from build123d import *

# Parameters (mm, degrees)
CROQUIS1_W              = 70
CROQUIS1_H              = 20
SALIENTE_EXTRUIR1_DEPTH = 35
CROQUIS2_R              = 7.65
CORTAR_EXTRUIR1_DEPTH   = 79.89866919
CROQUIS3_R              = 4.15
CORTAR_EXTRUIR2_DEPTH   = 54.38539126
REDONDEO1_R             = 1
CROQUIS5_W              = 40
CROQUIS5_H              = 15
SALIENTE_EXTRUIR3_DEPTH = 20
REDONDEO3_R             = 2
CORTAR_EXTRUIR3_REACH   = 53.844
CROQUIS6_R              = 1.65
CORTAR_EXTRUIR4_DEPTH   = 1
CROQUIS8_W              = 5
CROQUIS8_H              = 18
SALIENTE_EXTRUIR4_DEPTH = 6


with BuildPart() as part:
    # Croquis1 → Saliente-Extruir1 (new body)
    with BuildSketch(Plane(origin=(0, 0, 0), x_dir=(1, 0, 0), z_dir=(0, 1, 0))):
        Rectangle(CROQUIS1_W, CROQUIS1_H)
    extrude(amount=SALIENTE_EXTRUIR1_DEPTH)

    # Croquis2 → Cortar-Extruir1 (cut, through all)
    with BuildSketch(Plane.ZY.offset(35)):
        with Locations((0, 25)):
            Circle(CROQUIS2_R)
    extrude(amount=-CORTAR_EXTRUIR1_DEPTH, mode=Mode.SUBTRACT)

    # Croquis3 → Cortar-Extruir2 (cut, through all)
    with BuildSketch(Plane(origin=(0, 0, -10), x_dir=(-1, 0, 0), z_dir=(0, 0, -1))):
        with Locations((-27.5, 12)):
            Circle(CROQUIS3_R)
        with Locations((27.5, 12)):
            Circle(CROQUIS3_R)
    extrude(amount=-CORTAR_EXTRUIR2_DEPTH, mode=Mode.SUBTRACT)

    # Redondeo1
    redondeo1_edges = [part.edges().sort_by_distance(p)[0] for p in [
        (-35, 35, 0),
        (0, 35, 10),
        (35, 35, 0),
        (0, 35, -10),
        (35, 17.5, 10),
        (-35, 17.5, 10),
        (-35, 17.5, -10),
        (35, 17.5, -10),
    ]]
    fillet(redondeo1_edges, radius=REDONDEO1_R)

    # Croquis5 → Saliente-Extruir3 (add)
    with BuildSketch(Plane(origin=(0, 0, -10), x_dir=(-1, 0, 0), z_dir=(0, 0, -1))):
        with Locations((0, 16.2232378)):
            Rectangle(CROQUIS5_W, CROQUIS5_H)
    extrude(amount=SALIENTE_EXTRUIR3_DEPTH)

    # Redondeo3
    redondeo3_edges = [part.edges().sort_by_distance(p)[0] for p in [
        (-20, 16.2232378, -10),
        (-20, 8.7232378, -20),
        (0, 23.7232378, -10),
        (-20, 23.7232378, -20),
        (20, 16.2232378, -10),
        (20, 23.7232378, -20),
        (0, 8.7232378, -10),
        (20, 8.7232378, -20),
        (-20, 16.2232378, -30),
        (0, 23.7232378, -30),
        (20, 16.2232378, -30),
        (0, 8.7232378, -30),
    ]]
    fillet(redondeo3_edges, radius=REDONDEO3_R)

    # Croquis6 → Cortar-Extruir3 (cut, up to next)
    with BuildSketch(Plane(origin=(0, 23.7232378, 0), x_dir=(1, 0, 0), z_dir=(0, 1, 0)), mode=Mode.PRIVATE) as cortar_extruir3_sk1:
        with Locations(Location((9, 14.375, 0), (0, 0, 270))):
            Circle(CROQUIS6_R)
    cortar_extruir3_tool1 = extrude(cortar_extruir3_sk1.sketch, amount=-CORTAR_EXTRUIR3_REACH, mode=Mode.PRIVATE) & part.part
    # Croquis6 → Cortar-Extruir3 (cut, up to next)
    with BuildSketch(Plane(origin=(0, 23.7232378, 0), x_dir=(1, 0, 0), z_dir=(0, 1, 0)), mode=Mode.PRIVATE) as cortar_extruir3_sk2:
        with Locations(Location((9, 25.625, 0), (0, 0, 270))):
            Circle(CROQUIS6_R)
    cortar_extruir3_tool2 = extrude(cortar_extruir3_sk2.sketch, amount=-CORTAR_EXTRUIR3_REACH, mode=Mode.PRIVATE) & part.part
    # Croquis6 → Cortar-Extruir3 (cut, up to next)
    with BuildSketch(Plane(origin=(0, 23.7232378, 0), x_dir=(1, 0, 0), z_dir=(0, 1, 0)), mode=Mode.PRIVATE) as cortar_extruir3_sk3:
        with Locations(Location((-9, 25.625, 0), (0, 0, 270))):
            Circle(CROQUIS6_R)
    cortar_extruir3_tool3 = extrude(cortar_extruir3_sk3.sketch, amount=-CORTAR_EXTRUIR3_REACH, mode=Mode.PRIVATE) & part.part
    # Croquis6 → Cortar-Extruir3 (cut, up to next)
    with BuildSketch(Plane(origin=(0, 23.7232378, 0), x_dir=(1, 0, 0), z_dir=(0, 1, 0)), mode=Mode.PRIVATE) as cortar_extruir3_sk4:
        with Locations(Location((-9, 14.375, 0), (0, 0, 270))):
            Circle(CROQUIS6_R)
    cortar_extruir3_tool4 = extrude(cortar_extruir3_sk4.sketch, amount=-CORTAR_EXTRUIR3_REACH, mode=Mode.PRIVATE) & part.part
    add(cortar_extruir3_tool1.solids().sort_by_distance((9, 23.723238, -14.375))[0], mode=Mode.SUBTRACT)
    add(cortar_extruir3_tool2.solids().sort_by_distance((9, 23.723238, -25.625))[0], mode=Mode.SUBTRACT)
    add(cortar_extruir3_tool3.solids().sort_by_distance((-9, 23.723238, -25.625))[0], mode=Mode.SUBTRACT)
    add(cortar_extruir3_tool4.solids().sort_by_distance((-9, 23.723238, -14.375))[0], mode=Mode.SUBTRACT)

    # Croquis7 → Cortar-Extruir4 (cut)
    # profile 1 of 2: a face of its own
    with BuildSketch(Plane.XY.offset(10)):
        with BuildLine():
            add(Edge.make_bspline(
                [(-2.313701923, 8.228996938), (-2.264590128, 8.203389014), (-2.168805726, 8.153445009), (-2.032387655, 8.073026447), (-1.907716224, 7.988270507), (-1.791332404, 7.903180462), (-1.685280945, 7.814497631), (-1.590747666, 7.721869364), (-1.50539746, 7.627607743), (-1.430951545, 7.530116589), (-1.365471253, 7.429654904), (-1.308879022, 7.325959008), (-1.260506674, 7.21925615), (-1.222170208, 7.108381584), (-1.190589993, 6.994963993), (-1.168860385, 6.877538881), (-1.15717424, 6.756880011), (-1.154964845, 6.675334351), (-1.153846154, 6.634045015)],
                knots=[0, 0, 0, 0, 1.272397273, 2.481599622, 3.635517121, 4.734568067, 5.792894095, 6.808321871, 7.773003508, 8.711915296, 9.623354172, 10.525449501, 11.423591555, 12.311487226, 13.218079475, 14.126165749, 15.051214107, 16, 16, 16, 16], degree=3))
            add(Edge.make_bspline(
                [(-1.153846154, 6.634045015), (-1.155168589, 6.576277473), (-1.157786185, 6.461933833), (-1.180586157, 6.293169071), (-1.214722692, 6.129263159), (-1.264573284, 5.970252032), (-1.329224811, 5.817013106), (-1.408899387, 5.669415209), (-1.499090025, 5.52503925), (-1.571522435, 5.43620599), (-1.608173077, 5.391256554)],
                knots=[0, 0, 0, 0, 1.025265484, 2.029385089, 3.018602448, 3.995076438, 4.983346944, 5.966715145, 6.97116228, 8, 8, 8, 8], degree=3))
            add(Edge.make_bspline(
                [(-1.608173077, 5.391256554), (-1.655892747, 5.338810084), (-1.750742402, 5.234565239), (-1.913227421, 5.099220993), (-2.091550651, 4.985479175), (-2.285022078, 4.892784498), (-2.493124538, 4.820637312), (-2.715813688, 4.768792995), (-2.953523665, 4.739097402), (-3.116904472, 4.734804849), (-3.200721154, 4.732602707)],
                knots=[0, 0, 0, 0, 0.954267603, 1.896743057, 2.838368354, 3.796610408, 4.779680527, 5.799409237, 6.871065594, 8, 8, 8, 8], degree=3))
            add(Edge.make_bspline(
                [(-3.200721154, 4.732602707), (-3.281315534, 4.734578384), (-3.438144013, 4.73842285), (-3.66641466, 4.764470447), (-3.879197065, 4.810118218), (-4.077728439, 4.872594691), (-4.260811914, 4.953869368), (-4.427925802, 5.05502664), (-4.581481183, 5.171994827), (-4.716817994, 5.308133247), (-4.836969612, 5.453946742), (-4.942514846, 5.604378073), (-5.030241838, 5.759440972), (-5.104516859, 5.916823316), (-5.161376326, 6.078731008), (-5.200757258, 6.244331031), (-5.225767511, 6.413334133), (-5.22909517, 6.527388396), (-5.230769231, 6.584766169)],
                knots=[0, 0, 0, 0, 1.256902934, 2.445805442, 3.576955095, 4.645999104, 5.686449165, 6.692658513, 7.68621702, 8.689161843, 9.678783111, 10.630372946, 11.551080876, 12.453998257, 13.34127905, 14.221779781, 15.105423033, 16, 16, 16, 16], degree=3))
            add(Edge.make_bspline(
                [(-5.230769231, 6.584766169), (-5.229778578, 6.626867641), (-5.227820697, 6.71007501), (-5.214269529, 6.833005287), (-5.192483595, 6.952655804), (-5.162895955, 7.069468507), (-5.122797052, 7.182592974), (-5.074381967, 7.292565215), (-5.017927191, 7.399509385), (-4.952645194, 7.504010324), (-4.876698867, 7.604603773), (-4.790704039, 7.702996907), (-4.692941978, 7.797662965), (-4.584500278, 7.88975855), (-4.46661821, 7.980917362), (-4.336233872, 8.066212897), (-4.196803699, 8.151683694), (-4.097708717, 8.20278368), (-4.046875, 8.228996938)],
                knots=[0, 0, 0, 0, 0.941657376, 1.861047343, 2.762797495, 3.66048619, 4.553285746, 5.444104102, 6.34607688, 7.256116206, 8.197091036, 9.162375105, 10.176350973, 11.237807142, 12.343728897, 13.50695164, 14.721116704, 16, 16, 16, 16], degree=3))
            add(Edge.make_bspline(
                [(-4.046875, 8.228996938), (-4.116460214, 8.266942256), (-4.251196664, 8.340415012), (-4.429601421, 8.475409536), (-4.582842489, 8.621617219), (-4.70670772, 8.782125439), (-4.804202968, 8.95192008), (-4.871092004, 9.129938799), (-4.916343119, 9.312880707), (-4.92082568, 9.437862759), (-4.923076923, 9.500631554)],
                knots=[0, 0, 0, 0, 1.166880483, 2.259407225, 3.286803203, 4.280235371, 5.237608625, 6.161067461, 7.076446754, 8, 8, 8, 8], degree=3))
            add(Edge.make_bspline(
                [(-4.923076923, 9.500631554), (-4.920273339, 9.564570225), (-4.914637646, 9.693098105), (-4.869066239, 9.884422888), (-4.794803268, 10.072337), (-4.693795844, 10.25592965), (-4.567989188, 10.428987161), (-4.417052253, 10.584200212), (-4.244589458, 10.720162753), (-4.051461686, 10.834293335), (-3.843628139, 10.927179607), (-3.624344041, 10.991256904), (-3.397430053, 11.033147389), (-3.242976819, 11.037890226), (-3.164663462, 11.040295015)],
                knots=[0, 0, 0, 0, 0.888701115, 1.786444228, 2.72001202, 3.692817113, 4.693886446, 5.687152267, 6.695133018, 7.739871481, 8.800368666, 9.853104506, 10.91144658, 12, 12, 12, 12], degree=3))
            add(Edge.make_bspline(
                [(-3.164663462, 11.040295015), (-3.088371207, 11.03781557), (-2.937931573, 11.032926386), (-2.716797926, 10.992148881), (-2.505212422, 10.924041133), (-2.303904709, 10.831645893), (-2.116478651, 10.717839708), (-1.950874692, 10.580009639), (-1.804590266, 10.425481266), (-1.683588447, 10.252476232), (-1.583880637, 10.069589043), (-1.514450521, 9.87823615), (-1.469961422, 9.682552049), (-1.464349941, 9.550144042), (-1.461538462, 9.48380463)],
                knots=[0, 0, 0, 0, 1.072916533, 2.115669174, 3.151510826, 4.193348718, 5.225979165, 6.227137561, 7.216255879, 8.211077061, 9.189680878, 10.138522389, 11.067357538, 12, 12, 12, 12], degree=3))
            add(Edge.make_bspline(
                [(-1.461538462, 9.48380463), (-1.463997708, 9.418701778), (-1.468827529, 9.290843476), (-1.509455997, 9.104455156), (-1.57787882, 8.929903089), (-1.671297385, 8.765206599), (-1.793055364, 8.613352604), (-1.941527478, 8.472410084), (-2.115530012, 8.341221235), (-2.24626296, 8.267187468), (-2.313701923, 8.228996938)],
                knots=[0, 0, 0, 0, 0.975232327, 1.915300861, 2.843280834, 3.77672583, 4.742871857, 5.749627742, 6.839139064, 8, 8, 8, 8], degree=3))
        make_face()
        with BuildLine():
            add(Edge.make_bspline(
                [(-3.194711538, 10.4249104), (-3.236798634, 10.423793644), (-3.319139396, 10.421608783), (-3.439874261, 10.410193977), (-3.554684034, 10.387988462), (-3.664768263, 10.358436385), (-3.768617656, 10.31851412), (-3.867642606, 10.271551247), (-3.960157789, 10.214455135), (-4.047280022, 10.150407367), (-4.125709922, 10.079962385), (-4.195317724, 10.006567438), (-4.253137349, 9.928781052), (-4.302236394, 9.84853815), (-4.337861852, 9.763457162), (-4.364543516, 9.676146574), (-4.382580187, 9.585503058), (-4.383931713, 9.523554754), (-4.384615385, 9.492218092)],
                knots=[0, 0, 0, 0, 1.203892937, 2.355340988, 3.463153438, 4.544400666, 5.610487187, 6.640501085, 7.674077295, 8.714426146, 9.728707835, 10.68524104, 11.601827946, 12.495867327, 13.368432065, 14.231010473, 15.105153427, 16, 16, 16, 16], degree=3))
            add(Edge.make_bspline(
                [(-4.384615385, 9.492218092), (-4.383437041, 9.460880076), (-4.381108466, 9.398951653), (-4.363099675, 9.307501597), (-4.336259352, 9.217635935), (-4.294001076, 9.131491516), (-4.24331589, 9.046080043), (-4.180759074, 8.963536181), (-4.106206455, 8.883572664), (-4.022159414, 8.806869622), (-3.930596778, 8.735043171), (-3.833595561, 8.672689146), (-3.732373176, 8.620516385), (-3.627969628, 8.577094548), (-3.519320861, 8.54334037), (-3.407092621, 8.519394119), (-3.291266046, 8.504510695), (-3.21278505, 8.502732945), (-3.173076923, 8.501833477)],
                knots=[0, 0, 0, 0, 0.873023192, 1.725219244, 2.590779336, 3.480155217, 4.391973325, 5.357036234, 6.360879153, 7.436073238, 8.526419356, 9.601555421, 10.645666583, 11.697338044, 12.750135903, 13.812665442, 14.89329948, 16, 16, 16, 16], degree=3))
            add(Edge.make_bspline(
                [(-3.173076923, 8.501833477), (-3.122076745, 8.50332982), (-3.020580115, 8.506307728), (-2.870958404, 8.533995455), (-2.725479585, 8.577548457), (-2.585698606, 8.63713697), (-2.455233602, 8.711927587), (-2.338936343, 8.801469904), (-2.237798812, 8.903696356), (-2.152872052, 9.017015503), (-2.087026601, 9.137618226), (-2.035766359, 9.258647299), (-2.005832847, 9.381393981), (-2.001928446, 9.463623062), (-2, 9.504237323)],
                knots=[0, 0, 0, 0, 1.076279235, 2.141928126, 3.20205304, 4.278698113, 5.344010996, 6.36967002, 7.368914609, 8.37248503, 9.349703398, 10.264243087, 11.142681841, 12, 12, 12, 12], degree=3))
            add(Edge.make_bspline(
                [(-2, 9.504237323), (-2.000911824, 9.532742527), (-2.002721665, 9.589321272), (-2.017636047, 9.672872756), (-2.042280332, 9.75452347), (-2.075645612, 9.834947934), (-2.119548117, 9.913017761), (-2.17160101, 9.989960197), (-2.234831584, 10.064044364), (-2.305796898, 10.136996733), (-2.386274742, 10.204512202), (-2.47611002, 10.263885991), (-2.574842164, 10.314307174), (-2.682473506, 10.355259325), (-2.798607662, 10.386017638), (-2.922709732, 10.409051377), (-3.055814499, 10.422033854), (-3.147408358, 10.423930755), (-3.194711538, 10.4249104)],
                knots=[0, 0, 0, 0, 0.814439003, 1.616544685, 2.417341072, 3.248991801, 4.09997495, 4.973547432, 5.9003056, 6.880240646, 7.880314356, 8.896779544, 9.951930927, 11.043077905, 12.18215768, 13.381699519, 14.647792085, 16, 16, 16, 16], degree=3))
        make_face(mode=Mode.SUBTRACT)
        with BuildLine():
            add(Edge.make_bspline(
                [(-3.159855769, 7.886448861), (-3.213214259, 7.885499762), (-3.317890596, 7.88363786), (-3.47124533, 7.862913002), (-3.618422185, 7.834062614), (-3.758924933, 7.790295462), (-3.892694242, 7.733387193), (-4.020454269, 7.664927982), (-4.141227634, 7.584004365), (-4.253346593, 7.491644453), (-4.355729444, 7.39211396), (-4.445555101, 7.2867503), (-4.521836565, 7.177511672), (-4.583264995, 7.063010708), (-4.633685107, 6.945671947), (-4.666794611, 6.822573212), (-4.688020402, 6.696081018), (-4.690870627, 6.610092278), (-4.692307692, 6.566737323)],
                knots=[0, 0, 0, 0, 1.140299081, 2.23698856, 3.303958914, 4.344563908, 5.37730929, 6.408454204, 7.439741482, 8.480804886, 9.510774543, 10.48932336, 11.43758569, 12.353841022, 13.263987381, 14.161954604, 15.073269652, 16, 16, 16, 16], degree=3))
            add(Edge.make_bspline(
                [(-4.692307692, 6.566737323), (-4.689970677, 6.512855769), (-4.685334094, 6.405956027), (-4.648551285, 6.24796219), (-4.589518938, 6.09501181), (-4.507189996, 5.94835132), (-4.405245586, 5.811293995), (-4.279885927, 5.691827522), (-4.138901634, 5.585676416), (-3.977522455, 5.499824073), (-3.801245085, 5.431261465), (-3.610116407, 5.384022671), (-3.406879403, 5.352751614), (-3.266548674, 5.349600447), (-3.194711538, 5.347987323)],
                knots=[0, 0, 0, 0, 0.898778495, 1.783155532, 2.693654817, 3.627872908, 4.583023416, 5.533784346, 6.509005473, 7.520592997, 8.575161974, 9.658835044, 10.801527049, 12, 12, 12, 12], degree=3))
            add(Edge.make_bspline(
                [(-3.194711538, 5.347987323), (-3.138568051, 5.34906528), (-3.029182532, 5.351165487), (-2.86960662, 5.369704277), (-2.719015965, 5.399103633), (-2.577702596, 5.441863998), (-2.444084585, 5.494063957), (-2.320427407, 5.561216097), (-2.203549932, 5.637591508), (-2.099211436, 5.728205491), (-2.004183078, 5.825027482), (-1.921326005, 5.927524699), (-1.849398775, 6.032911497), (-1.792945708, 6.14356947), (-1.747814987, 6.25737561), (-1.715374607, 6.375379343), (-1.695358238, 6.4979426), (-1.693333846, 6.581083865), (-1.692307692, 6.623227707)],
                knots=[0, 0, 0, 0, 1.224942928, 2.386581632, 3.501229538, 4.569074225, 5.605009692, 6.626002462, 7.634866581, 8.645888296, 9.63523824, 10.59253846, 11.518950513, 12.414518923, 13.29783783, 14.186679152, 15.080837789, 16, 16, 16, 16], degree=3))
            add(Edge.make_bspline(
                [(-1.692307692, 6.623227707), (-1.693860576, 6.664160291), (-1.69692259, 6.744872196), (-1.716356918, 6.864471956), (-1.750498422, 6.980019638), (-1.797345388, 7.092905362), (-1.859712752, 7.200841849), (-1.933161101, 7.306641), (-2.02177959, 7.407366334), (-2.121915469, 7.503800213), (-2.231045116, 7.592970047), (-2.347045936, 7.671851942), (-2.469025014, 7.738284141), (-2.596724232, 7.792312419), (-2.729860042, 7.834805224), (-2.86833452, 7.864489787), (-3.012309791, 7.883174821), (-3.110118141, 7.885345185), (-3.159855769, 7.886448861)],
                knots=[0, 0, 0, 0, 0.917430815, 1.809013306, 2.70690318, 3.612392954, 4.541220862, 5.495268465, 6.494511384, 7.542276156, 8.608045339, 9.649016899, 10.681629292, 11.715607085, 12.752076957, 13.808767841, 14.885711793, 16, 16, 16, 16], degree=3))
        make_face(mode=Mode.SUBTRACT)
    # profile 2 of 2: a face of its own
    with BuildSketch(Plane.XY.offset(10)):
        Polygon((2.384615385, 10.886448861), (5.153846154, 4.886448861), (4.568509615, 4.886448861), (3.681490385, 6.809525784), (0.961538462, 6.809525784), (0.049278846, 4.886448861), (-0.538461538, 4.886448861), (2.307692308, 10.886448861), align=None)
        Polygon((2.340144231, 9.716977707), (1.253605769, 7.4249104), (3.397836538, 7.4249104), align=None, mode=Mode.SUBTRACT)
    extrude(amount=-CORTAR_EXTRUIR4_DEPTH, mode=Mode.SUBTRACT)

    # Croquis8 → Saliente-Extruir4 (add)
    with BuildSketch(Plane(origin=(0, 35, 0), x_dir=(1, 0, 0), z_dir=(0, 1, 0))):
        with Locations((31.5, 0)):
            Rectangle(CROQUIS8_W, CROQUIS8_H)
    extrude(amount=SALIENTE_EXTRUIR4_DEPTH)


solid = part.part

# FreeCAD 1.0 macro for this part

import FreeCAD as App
import Part
import Sketcher

V = App.Vector
Q = App.Units.Quantity


def edges_at(feature, points):
    """Names of the edges that pass closest to the given points."""
    edges = feature.Shape.Edges
    near = lambda p: min(range(len(edges)), key=lambda i: edges[i].distToShape(Part.Vertex(*p))[0])
    return sorted({f"Edge{near(p) + 1}" for p in points})

doc = App.newDocument("Part")
body = doc.addObject("PartDesign::Body", "Body")

# Sketch on XZ plane
sketch1 = body.newObject("Sketcher::SketchObject", "Sketch")
sketch1.AttachmentSupport = (doc.getObject("XZ_Plane"), [""])
sketch1.MapMode = "FlatFace"
sketch1.addGeometry([
    Part.LineSegment(V(-35, -10, 0), V(-35, 10, 0)),
    Part.LineSegment(V(-35, 10, 0), V(35, 10, 0)),
    Part.LineSegment(V(35, 10, 0), V(35, -10, 0)),
    Part.LineSegment(V(35, -10, 0), V(-35, -10, 0)),
], False)
sketch1.addConstraint([
    Sketcher.Constraint("Coincident", 0, 2, 1, 1),
    Sketcher.Constraint("Coincident", 1, 2, 2, 1),
    Sketcher.Constraint("Coincident", 2, 2, 3, 1),
    Sketcher.Constraint("Coincident", 3, 2, 0, 1),
    Sketcher.Constraint("Vertical", 0),
    Sketcher.Constraint("Horizontal", 1),
    Sketcher.Constraint("Vertical", 2),
    Sketcher.Constraint("Horizontal", 3),
    Sketcher.Constraint("Symmetric", 0, 2, 2, 2, -1, 1),
    Sketcher.Constraint("DistanceX", 1, 1, 1, 2, Q("70 mm")),
    Sketcher.Constraint("DistanceY", 0, 1, 0, 2, Q("20 mm")),
])
pad1 = body.newObject("PartDesign::Pad", "Pad")
pad1.Profile = sketch1
pad1.Length = 35
pad1.Reversed = True

# Sketch on YZ plane
sketch2 = body.newObject("Sketcher::SketchObject", "Sketch001")
sketch2.AttachmentSupport = (doc.getObject("YZ_Plane"), [""])
sketch2.MapMode = "FlatFace"
sketch2.AttachmentOffset = App.Placement(V(0, 0, -35), App.Rotation())
sketch2.addGeometry(Part.Circle(V(25, 0, 0), V(0, 0, 1), 8), False)
sketch2.addConstraint([
    Sketcher.Constraint("PointOnObject", 0, 3, -1),
    Sketcher.Constraint("Diameter", 0, Q("15.3 mm")),
    Sketcher.Constraint("DistanceX", -1, 1, 0, 3, Q("25 mm")),
])
pocket1 = body.newObject("PartDesign::Pocket", "Pocket")
pocket1.Profile = sketch2
pocket1.Type = "ThroughAll"
pocket1.Reversed = True

# Sketch on XY plane
sketch3 = body.newObject("Sketcher::SketchObject", "Sketch002")
sketch3.AttachmentSupport = (doc.getObject("XY_Plane"), [""])
sketch3.MapMode = "FlatFace"
sketch3.AttachmentOffset = App.Placement(V(0, 0, -10), App.Rotation())
sketch3.addGeometry([
    Part.Circle(V(27.5, 12, 0), V(0, 0, 1), 4.2),
    Part.Circle(V(-27.5, 12, 0), V(0, 0, 1), 4.2),
], False)
sketch3.addConstraint([
    Sketcher.Constraint("Equal", 0, 1),
    Sketcher.Constraint("Symmetric", 0, 3, 1, 3, -2),
    Sketcher.Constraint("Diameter", 0, Q("8.3 mm")),
    Sketcher.Constraint("DistanceY", -1, 1, 0, 3, Q("12 mm")),
    Sketcher.Constraint("DistanceX", 1, 3, 0, 3, Q("55 mm")),
])
pocket2 = body.newObject("PartDesign::Pocket", "Pocket001")
pocket2.Profile = sketch3
pocket2.Type = "ThroughAll"
pocket2.Reversed = True
doc.recompute()

fillet = body.newObject("PartDesign::Fillet", "Fillet")
fillet.Base = (pocket2, edges_at(pocket2, [
    (-35, 35, 0),
    (0, 35, 10),
    (35, 35, 0),
    (0, 35, -10),
    (35, 17.5, 10),
    (-35, 17.5, 10),
    (-35, 17.5, -10),
    (35, 17.5, -10),
]))
fillet.Radius = 1

# Sketch on XY plane
sketch4 = body.newObject("Sketcher::SketchObject", "Sketch003")
sketch4.AttachmentSupport = (doc.getObject("XY_Plane"), [""])
sketch4.MapMode = "FlatFace"
sketch4.AttachmentOffset = App.Placement(V(0, 0, -10), App.Rotation())
sketch4.addGeometry([
    Part.LineSegment(V(20, 24, 0), V(20, 9, 0)),
    Part.LineSegment(V(20, 9, 0), V(-20, 9, 0)),
    Part.LineSegment(V(-20, 9, 0), V(-20, 24, 0)),
    Part.LineSegment(V(-20, 24, 0), V(20, 24, 0)),
], False)
sketch4.addConstraint([
    Sketcher.Constraint("Coincident", 0, 2, 1, 1),
    Sketcher.Constraint("Coincident", 1, 2, 2, 1),
    Sketcher.Constraint("Coincident", 2, 2, 3, 1),
    Sketcher.Constraint("Coincident", 3, 2, 0, 1),
    Sketcher.Constraint("Vertical", 0),
    Sketcher.Constraint("Horizontal", 1),
    Sketcher.Constraint("Vertical", 2),
    Sketcher.Constraint("Horizontal", 3),
    Sketcher.Constraint("DistanceX", 1, 2, 1, 1, Q("40 mm")),
    Sketcher.Constraint("DistanceY", 0, 2, 0, 1, Q("15 mm")),
    Sketcher.Constraint("DistanceX", -1, 1, 0, 2, Q("20 mm")),
    Sketcher.Constraint("DistanceY", -1, 1, 0, 2, Q("8.723238 mm")),
])
pad2 = body.newObject("PartDesign::Pad", "Pad001")
pad2.Profile = sketch4
pad2.Length = 20
pad2.Reversed = True
doc.recompute()

fillet2 = body.newObject("PartDesign::Fillet", "Fillet001")
fillet2.Base = (pad2, edges_at(pad2, [
    (-20, 16.223, -10),
    (-20, 8.723, -20),
    (0, 23.723, -10),
    (-20, 23.723, -20),
    (20, 16.223, -10),
    (20, 23.723, -20),
    (0, 8.723, -10),
    (20, 8.723, -20),
    (-20, 16.223, -30),
    (0, 23.723, -30),
    (20, 16.223, -30),
    (0, 8.723, -30),
]))
fillet2.Radius = 2

# Sketch on XZ plane
sketch5 = body.newObject("Sketcher::SketchObject", "Sketch004")
sketch5.AttachmentSupport = (doc.getObject("XZ_Plane"), [""])
sketch5.MapMode = "FlatFace"
sketch5.AttachmentOffset = App.Placement(V(0, 0, -23.723238), App.Rotation())
sketch5.addGeometry(Part.Circle(V(9, -14.4, 0), V(0, 0, 1), 1.6), False)
sketch5.addConstraint([
    Sketcher.Constraint("Diameter", 0, Q("3.3 mm")),
    Sketcher.Constraint("DistanceX", -1, 1, 0, 3, Q("9 mm")),
    Sketcher.Constraint("DistanceY", 0, 3, -1, 1, Q("14.375 mm")),
])
pocket3 = body.newObject("PartDesign::Pocket", "Pocket002")
pocket3.Profile = sketch5
pocket3.Type = "UpToFirst"
pocket3.Reversed = True

# Sketch on XZ plane
sketch6 = body.newObject("Sketcher::SketchObject", "Sketch005")
sketch6.AttachmentSupport = (doc.getObject("XZ_Plane"), [""])
sketch6.MapMode = "FlatFace"
sketch6.AttachmentOffset = App.Placement(V(0, 0, -23.723238), App.Rotation())
sketch6.addGeometry(Part.Circle(V(9, -25.6, 0), V(0, 0, 1), 1.6), False)
sketch6.addConstraint([
    Sketcher.Constraint("Diameter", 0, Q("3.3 mm")),
    Sketcher.Constraint("DistanceX", -1, 1, 0, 3, Q("9 mm")),
    Sketcher.Constraint("DistanceY", 0, 3, -1, 1, Q("25.625 mm")),
])
pocket4 = body.newObject("PartDesign::Pocket", "Pocket003")
pocket4.Profile = sketch6
pocket4.Type = "UpToFirst"
pocket4.Reversed = True

# Sketch on XZ plane
sketch7 = body.newObject("Sketcher::SketchObject", "Sketch006")
sketch7.AttachmentSupport = (doc.getObject("XZ_Plane"), [""])
sketch7.MapMode = "FlatFace"
sketch7.AttachmentOffset = App.Placement(V(0, 0, -23.723238), App.Rotation())
sketch7.addGeometry(Part.Circle(V(-9, -25.6, 0), V(0, 0, 1), 1.6), False)
sketch7.addConstraint([
    Sketcher.Constraint("Diameter", 0, Q("3.3 mm")),
    Sketcher.Constraint("DistanceX", 0, 3, -1, 1, Q("9 mm")),
    Sketcher.Constraint("DistanceY", 0, 3, -1, 1, Q("25.625 mm")),
])
pocket5 = body.newObject("PartDesign::Pocket", "Pocket004")
pocket5.Profile = sketch7
pocket5.Type = "UpToFirst"
pocket5.Reversed = True

# Sketch on XZ plane
sketch8 = body.newObject("Sketcher::SketchObject", "Sketch007")
sketch8.AttachmentSupport = (doc.getObject("XZ_Plane"), [""])
sketch8.MapMode = "FlatFace"
sketch8.AttachmentOffset = App.Placement(V(0, 0, -23.723238), App.Rotation())
sketch8.addGeometry(Part.Circle(V(-9, -14.4, 0), V(0, 0, 1), 1.6), False)
sketch8.addConstraint([
    Sketcher.Constraint("Diameter", 0, Q("3.3 mm")),
    Sketcher.Constraint("DistanceX", 0, 3, -1, 1, Q("9 mm")),
    Sketcher.Constraint("DistanceY", 0, 3, -1, 1, Q("14.375 mm")),
])
pocket6 = body.newObject("PartDesign::Pocket", "Pocket005")
pocket6.Profile = sketch8
pocket6.Type = "UpToFirst"
pocket6.Reversed = True

# Sketch on XY plane
sketch9 = body.newObject("Sketcher::SketchObject", "Sketch008")
sketch9.AttachmentSupport = (doc.getObject("XY_Plane"), [""])
sketch9.MapMode = "FlatFace"
sketch9.AttachmentOffset = App.Placement(V(0, 0, 10), App.Rotation())
sketch9.addGeometry([
    Part.BSplineCurve([V(-2.313702, 8.228997, 0), V(-2.26459, 8.203389, 0), V(-2.168806, 8.153445, 0), V(-2.032388, 8.073026, 0), V(-1.907716, 7.988271, 0), V(-1.791332, 7.90318, 0), V(-1.685281, 7.814498, 0), V(-1.590748, 7.721869, 0), V(-1.505397, 7.627608, 0), V(-1.430952, 7.530117, 0), V(-1.365471, 7.429655, 0), V(-1.308879, 7.325959, 0), V(-1.260507, 7.219256, 0), V(-1.22217, 7.108382, 0), V(-1.19059, 6.994964, 0), V(-1.16886, 6.877539, 0), V(-1.157174, 6.75688, 0), V(-1.154965, 6.675334, 0), V(-1.153846, 6.634045, 0)], [4, 1, 1, 1, 1, 1, 1, 1, 1, 1, 1, 1, 1, 1, 1, 1, 4], [0, 1.272397273, 2.481599622, 3.635517121, 4.734568067, 5.792894095, 6.808321871, 7.773003508, 8.711915296, 9.623354172, 10.525449501, 11.423591555, 12.311487226, 13.218079475, 14.126165749, 15.051214107, 16], False, 3, [1, 1, 1, 1, 1, 1, 1, 1, 1, 1, 1, 1, 1, 1, 1, 1, 1, 1, 1], False),  # 0
    Part.BSplineCurve([V(-1.461538, 9.483805, 0), V(-1.463998, 9.418702, 0), V(-1.468828, 9.290843, 0), V(-1.509456, 9.104455, 0), V(-1.577879, 8.929903, 0), V(-1.671297, 8.765207, 0), V(-1.793055, 8.613353, 0), V(-1.941527, 8.47241, 0), V(-2.11553, 8.341221, 0), V(-2.246263, 8.267187, 0), V(-2.313702, 8.228997, 0)], [4, 1, 1, 1, 1, 1, 1, 1, 4], [0, 0.975232327, 1.915300861, 2.843280834, 3.77672583, 4.742871857, 5.749627742, 6.839139064, 8], False, 3, [1, 1, 1, 1, 1, 1, 1, 1, 1, 1, 1], False),  # 1
    Part.BSplineCurve([V(-3.164663, 11.040295, 0), V(-3.088371, 11.037816, 0), V(-2.937932, 11.032926, 0), V(-2.716798, 10.992149, 0), V(-2.505212, 10.924041, 0), V(-2.303905, 10.831646, 0), V(-2.116479, 10.71784, 0), V(-1.950875, 10.58001, 0), V(-1.80459, 10.425481, 0), V(-1.683588, 10.252476, 0), V(-1.583881, 10.069589, 0), V(-1.514451, 9.878236, 0), V(-1.469961, 9.682552, 0), V(-1.46435, 9.550144, 0), V(-1.461538, 9.483805, 0)], [4, 1, 1, 1, 1, 1, 1, 1, 1, 1, 1, 1, 4], [0, 1.072916533, 2.115669174, 3.151510826, 4.193348718, 5.225979165, 6.227137561, 7.216255879, 8.211077061, 9.189680878, 10.138522389, 11.067357538, 12], False, 3, [1, 1, 1, 1, 1, 1, 1, 1, 1, 1, 1, 1, 1, 1, 1], False),  # 2
    Part.BSplineCurve([V(-4.923077, 9.500632, 0), V(-4.920273, 9.56457, 0), V(-4.914638, 9.693098, 0), V(-4.869066, 9.884423, 0), V(-4.794803, 10.072337, 0), V(-4.693796, 10.25593, 0), V(-4.567989, 10.428987, 0), V(-4.417052, 10.5842, 0), V(-4.244589, 10.720163, 0), V(-4.051462, 10.834293, 0), V(-3.843628, 10.92718, 0), V(-3.624344, 10.991257, 0), V(-3.39743, 11.033147, 0), V(-3.242977, 11.03789, 0), V(-3.164663, 11.040295, 0)], [4, 1, 1, 1, 1, 1, 1, 1, 1, 1, 1, 1, 4], [0, 0.888701115, 1.786444228, 2.72001202, 3.692817113, 4.693886446, 5.687152267, 6.695133018, 7.739871481, 8.800368666, 9.853104506, 10.91144658, 12], False, 3, [1, 1, 1, 1, 1, 1, 1, 1, 1, 1, 1, 1, 1, 1, 1], False),  # 3
    Part.BSplineCurve([V(-4.046875, 8.228997, 0), V(-4.11646, 8.266942, 0), V(-4.251197, 8.340415, 0), V(-4.429601, 8.47541, 0), V(-4.582842, 8.621617, 0), V(-4.706708, 8.782125, 0), V(-4.804203, 8.95192, 0), V(-4.871092, 9.129939, 0), V(-4.916343, 9.312881, 0), V(-4.920826, 9.437863, 0), V(-4.923077, 9.500632, 0)], [4, 1, 1, 1, 1, 1, 1, 1, 4], [0, 1.166880483, 2.259407225, 3.286803203, 4.280235371, 5.237608625, 6.161067461, 7.076446754, 8], False, 3, [1, 1, 1, 1, 1, 1, 1, 1, 1, 1, 1], False),  # 4
    Part.BSplineCurve([V(-5.230769, 6.584766, 0), V(-5.229779, 6.626868, 0), V(-5.227821, 6.710075, 0), V(-5.21427, 6.833005, 0), V(-5.192484, 6.952656, 0), V(-5.162896, 7.069469, 0), V(-5.122797, 7.182593, 0), V(-5.074382, 7.292565, 0), V(-5.017927, 7.399509, 0), V(-4.952645, 7.50401, 0), V(-4.876699, 7.604604, 0), V(-4.790704, 7.702997, 0), V(-4.692942, 7.797663, 0), V(-4.5845, 7.889759, 0), V(-4.466618, 7.980917, 0), V(-4.336234, 8.066213, 0), V(-4.196804, 8.151684, 0), V(-4.097709, 8.202784, 0), V(-4.046875, 8.228997, 0)], [4, 1, 1, 1, 1, 1, 1, 1, 1, 1, 1, 1, 1, 1, 1, 1, 4], [0, 0.941657376, 1.861047343, 2.762797495, 3.66048619, 4.553285746, 5.444104102, 6.34607688, 7.256116206, 8.197091036, 9.162375105, 10.176350973, 11.237807142, 12.343728897, 13.50695164, 14.721116704, 16], False, 3, [1, 1, 1, 1, 1, 1, 1, 1, 1, 1, 1, 1, 1, 1, 1, 1, 1, 1, 1], False),  # 5
    Part.BSplineCurve([V(-3.200721, 4.732603, 0), V(-3.281316, 4.734578, 0), V(-3.438144, 4.738423, 0), V(-3.666415, 4.76447, 0), V(-3.879197, 4.810118, 0), V(-4.077728, 4.872595, 0), V(-4.260812, 4.953869, 0), V(-4.427926, 5.055027, 0), V(-4.581481, 5.171995, 0), V(-4.716818, 5.308133, 0), V(-4.83697, 5.453947, 0), V(-4.942515, 5.604378, 0), V(-5.030242, 5.759441, 0), V(-5.104517, 5.916823, 0), V(-5.161376, 6.078731, 0), V(-5.200757, 6.244331, 0), V(-5.225768, 6.413334, 0), V(-5.229095, 6.527388, 0), V(-5.230769, 6.584766, 0)], [4, 1, 1, 1, 1, 1, 1, 1, 1, 1, 1, 1, 1, 1, 1, 1, 4], [0, 1.256902934, 2.445805442, 3.576955095, 4.645999104, 5.686449165, 6.692658513, 7.68621702, 8.689161843, 9.678783111, 10.630372946, 11.551080876, 12.453998257, 13.34127905, 14.221779781, 15.105423033, 16], False, 3, [1, 1, 1, 1, 1, 1, 1, 1, 1, 1, 1, 1, 1, 1, 1, 1, 1, 1, 1], False),  # 6
    Part.BSplineCurve([V(-1.608173, 5.391257, 0), V(-1.655893, 5.33881, 0), V(-1.750742, 5.234565, 0), V(-1.913227, 5.099221, 0), V(-2.091551, 4.985479, 0), V(-2.285022, 4.892784, 0), V(-2.493125, 4.820637, 0), V(-2.715814, 4.768793, 0), V(-2.953524, 4.739097, 0), V(-3.116904, 4.734805, 0), V(-3.200721, 4.732603, 0)], [4, 1, 1, 1, 1, 1, 1, 1, 4], [0, 0.954267603, 1.896743057, 2.838368354, 3.796610408, 4.779680527, 5.799409237, 6.871065594, 8], False, 3, [1, 1, 1, 1, 1, 1, 1, 1, 1, 1, 1], False),  # 7
    Part.BSplineCurve([V(-1.153846, 6.634045, 0), V(-1.155169, 6.576277, 0), V(-1.157786, 6.461934, 0), V(-1.180586, 6.293169, 0), V(-1.214723, 6.129263, 0), V(-1.264573, 5.970252, 0), V(-1.329225, 5.817013, 0), V(-1.408899, 5.669415, 0), V(-1.49909, 5.525039, 0), V(-1.571522, 5.436206, 0), V(-1.608173, 5.391257, 0)], [4, 1, 1, 1, 1, 1, 1, 1, 4], [0, 1.025265484, 2.029385089, 3.018602448, 3.995076438, 4.983346944, 5.966715145, 6.97116228, 8], False, 3, [1, 1, 1, 1, 1, 1, 1, 1, 1, 1, 1], False),  # 8
    Part.BSplineCurve([V(-1.692308, 6.623228, 0), V(-1.693861, 6.66416, 0), V(-1.696923, 6.744872, 0), V(-1.716357, 6.864472, 0), V(-1.750498, 6.98002, 0), V(-1.797345, 7.092905, 0), V(-1.859713, 7.200842, 0), V(-1.933161, 7.306641, 0), V(-2.02178, 7.407366, 0), V(-2.121915, 7.5038, 0), V(-2.231045, 7.59297, 0), V(-2.347046, 7.671852, 0), V(-2.469025, 7.738284, 0), V(-2.596724, 7.792312, 0), V(-2.72986, 7.834805, 0), V(-2.868335, 7.86449, 0), V(-3.01231, 7.883175, 0), V(-3.110118, 7.885345, 0), V(-3.159856, 7.886449, 0)], [4, 1, 1, 1, 1, 1, 1, 1, 1, 1, 1, 1, 1, 1, 1, 1, 4], [0, 0.917430815, 1.809013306, 2.70690318, 3.612392954, 4.541220862, 5.495268465, 6.494511384, 7.542276156, 8.608045339, 9.649016899, 10.681629292, 11.715607085, 12.752076957, 13.808767841, 14.885711793, 16], False, 3, [1, 1, 1, 1, 1, 1, 1, 1, 1, 1, 1, 1, 1, 1, 1, 1, 1, 1, 1], False),  # 9
    Part.BSplineCurve([V(-3.194712, 5.347987, 0), V(-3.138568, 5.349065, 0), V(-3.029183, 5.351165, 0), V(-2.869607, 5.369704, 0), V(-2.719016, 5.399104, 0), V(-2.577703, 5.441864, 0), V(-2.444085, 5.494064, 0), V(-2.320427, 5.561216, 0), V(-2.20355, 5.637592, 0), V(-2.099211, 5.728205, 0), V(-2.004183, 5.825027, 0), V(-1.921326, 5.927525, 0), V(-1.849399, 6.032911, 0), V(-1.792946, 6.143569, 0), V(-1.747815, 6.257376, 0), V(-1.715375, 6.375379, 0), V(-1.695358, 6.497943, 0), V(-1.693334, 6.581084, 0), V(-1.692308, 6.623228, 0)], [4, 1, 1, 1, 1, 1, 1, 1, 1, 1, 1, 1, 1, 1, 1, 1, 4], [0, 1.224942928, 2.386581632, 3.501229538, 4.569074225, 5.605009692, 6.626002462, 7.634866581, 8.645888296, 9.63523824, 10.59253846, 11.518950513, 12.414518923, 13.29783783, 14.186679152, 15.080837789, 16], False, 3, [1, 1, 1, 1, 1, 1, 1, 1, 1, 1, 1, 1, 1, 1, 1, 1, 1, 1, 1], False),  # 10
    Part.BSplineCurve([V(-4.692308, 6.566737, 0), V(-4.689971, 6.512856, 0), V(-4.685334, 6.405956, 0), V(-4.648551, 6.247962, 0), V(-4.589519, 6.095012, 0), V(-4.50719, 5.948351, 0), V(-4.405246, 5.811294, 0), V(-4.279886, 5.691828, 0), V(-4.138902, 5.585676, 0), V(-3.977522, 5.499824, 0), V(-3.801245, 5.431261, 0), V(-3.610116, 5.384023, 0), V(-3.406879, 5.352752, 0), V(-3.266549, 5.3496, 0), V(-3.194712, 5.347987, 0)], [4, 1, 1, 1, 1, 1, 1, 1, 1, 1, 1, 1, 4], [0, 0.898778495, 1.783155532, 2.693654817, 3.627872908, 4.583023416, 5.533784346, 6.509005473, 7.520592997, 8.575161974, 9.658835044, 10.801527049, 12], False, 3, [1, 1, 1, 1, 1, 1, 1, 1, 1, 1, 1, 1, 1, 1, 1], False),  # 11
    Part.BSplineCurve([V(-3.159856, 7.886449, 0), V(-3.213214, 7.8855, 0), V(-3.317891, 7.883638, 0), V(-3.471245, 7.862913, 0), V(-3.618422, 7.834063, 0), V(-3.758925, 7.790295, 0), V(-3.892694, 7.733387, 0), V(-4.020454, 7.664928, 0), V(-4.141228, 7.584004, 0), V(-4.253347, 7.491644, 0), V(-4.355729, 7.392114, 0), V(-4.445555, 7.28675, 0), V(-4.521837, 7.177512, 0), V(-4.583265, 7.063011, 0), V(-4.633685, 6.945672, 0), V(-4.666795, 6.822573, 0), V(-4.68802, 6.696081, 0), V(-4.690871, 6.610092, 0), V(-4.692308, 6.566737, 0)], [4, 1, 1, 1, 1, 1, 1, 1, 1, 1, 1, 1, 1, 1, 1, 1, 4], [0, 1.140299081, 2.23698856, 3.303958914, 4.344563908, 5.37730929, 6.408454204, 7.439741482, 8.480804886, 9.510774543, 10.48932336, 11.43758569, 12.353841022, 13.263987381, 14.161954604, 15.073269652, 16], False, 3, [1, 1, 1, 1, 1, 1, 1, 1, 1, 1, 1, 1, 1, 1, 1, 1, 1, 1, 1], False),  # 12
    Part.BSplineCurve([V(-2, 9.504237, 0), V(-2.000912, 9.532743, 0), V(-2.002722, 9.589321, 0), V(-2.017636, 9.672873, 0), V(-2.04228, 9.754523, 0), V(-2.075646, 9.834948, 0), V(-2.119548, 9.913018, 0), V(-2.171601, 9.98996, 0), V(-2.234832, 10.064044, 0), V(-2.305797, 10.136997, 0), V(-2.386275, 10.204512, 0), V(-2.47611, 10.263886, 0), V(-2.574842, 10.314307, 0), V(-2.682474, 10.355259, 0), V(-2.798608, 10.386018, 0), V(-2.92271, 10.409051, 0), V(-3.055814, 10.422034, 0), V(-3.147408, 10.423931, 0), V(-3.194712, 10.42491, 0)], [4, 1, 1, 1, 1, 1, 1, 1, 1, 1, 1, 1, 1, 1, 1, 1, 4], [0, 0.814439003, 1.616544685, 2.417341072, 3.248991801, 4.09997495, 4.973547432, 5.9003056, 6.880240646, 7.880314356, 8.896779544, 9.951930927, 11.043077905, 12.18215768, 13.381699519, 14.647792085, 16], False, 3, [1, 1, 1, 1, 1, 1, 1, 1, 1, 1, 1, 1, 1, 1, 1, 1, 1, 1, 1], False),  # 13
    Part.BSplineCurve([V(-3.173077, 8.501833, 0), V(-3.122077, 8.50333, 0), V(-3.02058, 8.506308, 0), V(-2.870958, 8.533995, 0), V(-2.72548, 8.577548, 0), V(-2.585699, 8.637137, 0), V(-2.455234, 8.711928, 0), V(-2.338936, 8.80147, 0), V(-2.237799, 8.903696, 0), V(-2.152872, 9.017016, 0), V(-2.087027, 9.137618, 0), V(-2.035766, 9.258647, 0), V(-2.005833, 9.381394, 0), V(-2.001928, 9.463623, 0), V(-2, 9.504237, 0)], [4, 1, 1, 1, 1, 1, 1, 1, 1, 1, 1, 1, 4], [0, 1.076279235, 2.141928126, 3.20205304, 4.278698113, 5.344010996, 6.36967002, 7.368914609, 8.37248503, 9.349703398, 10.264243087, 11.142681841, 12], False, 3, [1, 1, 1, 1, 1, 1, 1, 1, 1, 1, 1, 1, 1, 1, 1], False),  # 14
    Part.BSplineCurve([V(-4.384615, 9.492218, 0), V(-4.383437, 9.46088, 0), V(-4.381108, 9.398952, 0), V(-4.3631, 9.307502, 0), V(-4.336259, 9.217636, 0), V(-4.294001, 9.131492, 0), V(-4.243316, 9.04608, 0), V(-4.180759, 8.963536, 0), V(-4.106206, 8.883573, 0), V(-4.022159, 8.80687, 0), V(-3.930597, 8.735043, 0), V(-3.833596, 8.672689, 0), V(-3.732373, 8.620516, 0), V(-3.62797, 8.577095, 0), V(-3.519321, 8.54334, 0), V(-3.407093, 8.519394, 0), V(-3.291266, 8.504511, 0), V(-3.212785, 8.502733, 0), V(-3.173077, 8.501833, 0)], [4, 1, 1, 1, 1, 1, 1, 1, 1, 1, 1, 1, 1, 1, 1, 1, 4], [0, 0.873023192, 1.725219244, 2.590779336, 3.480155217, 4.391973325, 5.357036234, 6.360879153, 7.436073238, 8.526419356, 9.601555421, 10.645666583, 11.697338044, 12.750135903, 13.812665442, 14.89329948, 16], False, 3, [1, 1, 1, 1, 1, 1, 1, 1, 1, 1, 1, 1, 1, 1, 1, 1, 1, 1, 1], False),  # 15
    Part.BSplineCurve([V(-3.194712, 10.42491, 0), V(-3.236799, 10.423794, 0), V(-3.319139, 10.421609, 0), V(-3.439874, 10.410194, 0), V(-3.554684, 10.387988, 0), V(-3.664768, 10.358436, 0), V(-3.768618, 10.318514, 0), V(-3.867643, 10.271551, 0), V(-3.960158, 10.214455, 0), V(-4.04728, 10.150407, 0), V(-4.12571, 10.079962, 0), V(-4.195318, 10.006567, 0), V(-4.253137, 9.928781, 0), V(-4.302236, 9.848538, 0), V(-4.337862, 9.763457, 0), V(-4.364544, 9.676147, 0), V(-4.38258, 9.585503, 0), V(-4.383932, 9.523555, 0), V(-4.384615, 9.492218, 0)], [4, 1, 1, 1, 1, 1, 1, 1, 1, 1, 1, 1, 1, 1, 1, 1, 4], [0, 1.203892937, 2.355340988, 3.463153438, 4.544400666, 5.610487187, 6.640501085, 7.674077295, 8.714426146, 9.728707835, 10.68524104, 11.601827946, 12.495867327, 13.368432065, 14.231010473, 15.105153427, 16], False, 3, [1, 1, 1, 1, 1, 1, 1, 1, 1, 1, 1, 1, 1, 1, 1, 1, 1, 1, 1], False),  # 16
    Part.LineSegment(V(5.153846, 4.886449, 0), V(2.384615, 10.886449, 0)),  # 17
    Part.LineSegment(V(2.384615, 10.886449, 0), V(2.307692, 10.886449, 0)),  # 18
    Part.LineSegment(V(2.307692, 10.886449, 0), V(-0.538462, 4.886449, 0)),  # 19
    Part.LineSegment(V(-0.538462, 4.886449, 0), V(0.049279, 4.886449, 0)),  # 20
    Part.LineSegment(V(0.049279, 4.886449, 0), V(0.961538, 6.809526, 0)),  # 21
    Part.LineSegment(V(0.961538, 6.809526, 0), V(3.68149, 6.809526, 0)),  # 22
    Part.LineSegment(V(3.68149, 6.809526, 0), V(4.56851, 4.886449, 0)),  # 23
    Part.LineSegment(V(4.56851, 4.886449, 0), V(5.153846, 4.886449, 0)),  # 24
    Part.LineSegment(V(2.340144, 9.716978, 0), V(3.397837, 7.42491, 0)),  # 25
    Part.LineSegment(V(3.397837, 7.42491, 0), V(1.253606, 7.42491, 0)),  # 26
    Part.LineSegment(V(1.253606, 7.42491, 0), V(2.340144, 9.716978, 0)),  # 27
], False)
sketch9.addConstraint([
    Sketcher.Constraint("Block", 0),
    Sketcher.Constraint("Block", 1),
    Sketcher.Constraint("Block", 2),
    Sketcher.Constraint("Block", 3),
    Sketcher.Constraint("Block", 4),
    Sketcher.Constraint("Block", 5),
    Sketcher.Constraint("Block", 6),
    Sketcher.Constraint("Block", 7),
    Sketcher.Constraint("Block", 8),
    Sketcher.Constraint("Block", 9),
    Sketcher.Constraint("Block", 10),
    Sketcher.Constraint("Block", 11),
    Sketcher.Constraint("Block", 12),
    Sketcher.Constraint("Block", 13),
    Sketcher.Constraint("Block", 14),
    Sketcher.Constraint("Block", 15),
    Sketcher.Constraint("Block", 16),
    Sketcher.Constraint("Coincident", 17, 2, 18, 1),
    Sketcher.Constraint("Coincident", 18, 2, 19, 1),
    Sketcher.Constraint("Coincident", 19, 2, 20, 1),
    Sketcher.Constraint("Coincident", 20, 2, 21, 1),
    Sketcher.Constraint("Coincident", 21, 2, 22, 1),
    Sketcher.Constraint("Coincident", 22, 2, 23, 1),
    Sketcher.Constraint("Coincident", 23, 2, 24, 1),
    Sketcher.Constraint("Coincident", 24, 2, 17, 1),
    Sketcher.Constraint("Coincident", 25, 2, 26, 1),
    Sketcher.Constraint("Coincident", 26, 2, 27, 1),
    Sketcher.Constraint("Coincident", 27, 2, 25, 1),
    Sketcher.Constraint("Horizontal", 18),
    Sketcher.Constraint("Horizontal", 20),
    Sketcher.Constraint("Horizontal", 22),
    Sketcher.Constraint("Horizontal", 24),
    Sketcher.Constraint("Horizontal", 26),
    Sketcher.Constraint("Horizontal", 20, 2, 23, 2),
    Sketcher.Constraint("DistanceY", 19, 2, 18, 2, Q("6 mm")),
    Sketcher.Constraint("DistanceX", 19, 2, 21, 2, Q("1.5 mm")),
    Sketcher.Constraint("DistanceX", 20, 1, 20, 2, Q("0.58774 mm")),
    Sketcher.Constraint("DistanceX", 22, 1, 22, 2, Q("2.719952 mm")),
    Sketcher.Constraint("DistanceX", 26, 2, 26, 1, Q("2.144231 mm")),
    Sketcher.Constraint("DistanceX", 18, 2, 22, 2, Q("1.373798 mm")),
    Sketcher.Constraint("DistanceX", 21, 2, 25, 2, Q("2.436298 mm")),
    Sketcher.Constraint("Distance", 23, Q("2.117788 mm")),
    Sketcher.Constraint("Distance", 25, Q("2.524339 mm")),
    Sketcher.Constraint("Distance", 27, Q("2.53656 mm")),
    Sketcher.Constraint("DistanceX", 18, 2, 18, 1, Q("0.076923 mm")),
    Sketcher.Constraint("DistanceX", 24, 1, 24, 2, Q("0.585337 mm")),
    Sketcher.Constraint("DistanceY", -1, 1, 17, 2, Q("10.886449 mm")),
    Sketcher.Constraint("DistanceX", 19, 2, -1, 1, Q("0.538462 mm")),
    Sketcher.Constraint("DistanceX", -1, 1, 23, 2, Q("4.56851 mm")),
    Sketcher.Constraint("DistanceY", -1, 1, 25, 2, Q("7.42491 mm")),
])
pocket7 = body.newObject("PartDesign::Pocket", "Pocket006")
pocket7.Profile = sketch9
pocket7.Length = 1

# Sketch on XZ plane
sketch10 = body.newObject("Sketcher::SketchObject", "Sketch009")
sketch10.AttachmentSupport = (doc.getObject("XZ_Plane"), [""])
sketch10.MapMode = "FlatFace"
sketch10.AttachmentOffset = App.Placement(V(0, 0, -35), App.Rotation())
sketch10.addGeometry([
    Part.LineSegment(V(29, -9, 0), V(29, 9, 0)),
    Part.LineSegment(V(29, 9, 0), V(34, 9, 0)),
    Part.LineSegment(V(34, 9, 0), V(34, -9, 0)),
    Part.LineSegment(V(34, -9, 0), V(29, -9, 0)),
], False)
sketch10.addConstraint([
    Sketcher.Constraint("Coincident", 0, 2, 1, 1),
    Sketcher.Constraint("Coincident", 1, 2, 2, 1),
    Sketcher.Constraint("Coincident", 2, 2, 3, 1),
    Sketcher.Constraint("Coincident", 3, 2, 0, 1),
    Sketcher.Constraint("Vertical", 0),
    Sketcher.Constraint("Horizontal", 1),
    Sketcher.Constraint("Vertical", 2),
    Sketcher.Constraint("Horizontal", 3),
    Sketcher.Constraint("DistanceX", 1, 1, 1, 2, Q("5 mm")),
    Sketcher.Constraint("DistanceY", 0, 1, 0, 2, Q("18 mm")),
    Sketcher.Constraint("DistanceX", -1, 1, 0, 2, Q("29 mm")),
    Sketcher.Constraint("DistanceY", -1, 1, 0, 2, Q("9 mm")),
])
pad3 = body.newObject("PartDesign::Pad", "Pad002")
pad3.Profile = sketch10
pad3.Length = 6
pad3.Reversed = True

doc.recompute()
